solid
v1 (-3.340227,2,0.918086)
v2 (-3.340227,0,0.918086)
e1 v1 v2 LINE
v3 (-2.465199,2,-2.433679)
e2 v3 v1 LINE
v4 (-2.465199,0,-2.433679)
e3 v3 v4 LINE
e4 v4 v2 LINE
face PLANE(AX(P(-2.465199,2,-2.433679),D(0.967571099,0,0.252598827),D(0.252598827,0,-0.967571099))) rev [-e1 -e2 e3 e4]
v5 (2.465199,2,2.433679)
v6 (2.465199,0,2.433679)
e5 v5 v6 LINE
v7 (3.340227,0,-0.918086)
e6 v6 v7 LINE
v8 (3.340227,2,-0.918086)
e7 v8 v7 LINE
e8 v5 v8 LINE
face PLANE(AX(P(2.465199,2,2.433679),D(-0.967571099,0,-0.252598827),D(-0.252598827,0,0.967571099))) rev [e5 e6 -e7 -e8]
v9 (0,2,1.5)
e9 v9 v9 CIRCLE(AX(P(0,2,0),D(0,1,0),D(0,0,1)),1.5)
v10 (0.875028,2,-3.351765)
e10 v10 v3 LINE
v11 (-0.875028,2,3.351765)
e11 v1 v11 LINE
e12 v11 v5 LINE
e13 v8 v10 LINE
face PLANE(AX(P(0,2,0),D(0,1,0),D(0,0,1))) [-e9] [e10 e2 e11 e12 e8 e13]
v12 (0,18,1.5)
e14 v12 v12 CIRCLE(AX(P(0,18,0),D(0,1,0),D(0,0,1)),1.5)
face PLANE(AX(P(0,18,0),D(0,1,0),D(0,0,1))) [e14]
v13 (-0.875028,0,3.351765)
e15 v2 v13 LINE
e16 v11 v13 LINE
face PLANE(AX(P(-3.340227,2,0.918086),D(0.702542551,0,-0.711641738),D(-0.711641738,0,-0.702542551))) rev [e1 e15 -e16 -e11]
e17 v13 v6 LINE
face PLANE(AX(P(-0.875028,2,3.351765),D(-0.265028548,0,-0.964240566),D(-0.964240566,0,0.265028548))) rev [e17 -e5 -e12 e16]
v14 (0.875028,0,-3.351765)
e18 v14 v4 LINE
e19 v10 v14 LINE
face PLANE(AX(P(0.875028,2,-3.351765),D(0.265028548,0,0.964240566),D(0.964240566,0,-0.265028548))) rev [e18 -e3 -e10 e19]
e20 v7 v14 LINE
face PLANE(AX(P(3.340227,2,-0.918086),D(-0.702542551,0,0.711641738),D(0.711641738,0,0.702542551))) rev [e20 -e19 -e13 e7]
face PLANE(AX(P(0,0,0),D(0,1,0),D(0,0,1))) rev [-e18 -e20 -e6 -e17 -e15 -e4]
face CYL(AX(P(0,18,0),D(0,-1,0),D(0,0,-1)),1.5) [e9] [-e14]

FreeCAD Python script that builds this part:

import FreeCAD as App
import Part
import Sketcher
from FreeCAD import Vector


def add_polygon(sketch, points):
    """Adds a closed chain of lines whose ends are joined by coincident constraints."""
    first, n = sketch.GeometryCount, len(points)
    for a, b in zip(points, points[1:] + points[:1]):
        sketch.addGeometry(Part.LineSegment(App.Vector(*a, 0), App.Vector(*b, 0)), False)
    for i in range(n):
        sketch.addConstraint(Sketcher.Constraint("Coincident", first + i, 2, first + (i + 1) % n, 1))

doc = App.newDocument("Part")
body = doc.addObject("PartDesign::Body", "Body")

sketch1 = doc.addObject("Sketcher::SketchObject", "Sketch")
body.addObject(sketch1)
sketch1.AttachmentSupport = (doc.XZ_Plane, [""])
sketch1.MapMode = "FlatFace"
add_polygon(sketch1, [(2.5, 2.4), (3.3, -0.9), (0.9, -3.4), (-2.5, -2.4), (-3.3, 0.9), (-0.9, 3.4)])
sketch1.addConstraint([
    Sketcher.Constraint("Symmetric", 0, 2, 3, 2, -1, 1),
    Sketcher.Constraint("Symmetric", 1, 2, 4, 2, -1, 1),
    Sketcher.Constraint("Symmetric", 2, 2, 5, 2, -1, 1),
    Sketcher.Constraint("Equal", 0, 1),
    Sketcher.Constraint("Equal", 1, 2),
    Sketcher.Constraint("Distance", 0, 3.464102),
    Sketcher.Constraint("DistanceX", 2, 2, -1, 1, 2.465199),
    Sketcher.Constraint("DistanceX", 1, 2, 0, 2, 2.465199),
    Sketcher.Constraint("DistanceX", -1, 1, 1, 2, 0.875028),
])
pad1 = doc.addObject("PartDesign::Pad", "Pad")
body.addObject(pad1)
pad1.Profile = sketch1
pad1.Length = 2
pad1.Reversed = True

sketch2 = doc.addObject("Sketcher::SketchObject", "Sketch001")
body.addObject(sketch2)
sketch2.AttachmentSupport = (doc.XZ_Plane, [""])
sketch2.MapMode = "FlatFace"
sketch2.AttachmentOffset = App.Placement(Vector(0, 0, -2), App.Rotation())
sketch2.addGeometry(Part.Circle(Vector(0, 0, 0), Vector(0, 0, 1), 1.5), False)
sketch2.addConstraint([
    Sketcher.Constraint("Coincident", 0, 3, -1, 1),
    Sketcher.Constraint("Diameter", 0, 3.0),
])
pad2 = doc.addObject("PartDesign::Pad", "Pad001")
body.addObject(pad2)
pad2.Profile = sketch2
pad2.Length = 16
pad2.Reversed = True

doc.recompute()
